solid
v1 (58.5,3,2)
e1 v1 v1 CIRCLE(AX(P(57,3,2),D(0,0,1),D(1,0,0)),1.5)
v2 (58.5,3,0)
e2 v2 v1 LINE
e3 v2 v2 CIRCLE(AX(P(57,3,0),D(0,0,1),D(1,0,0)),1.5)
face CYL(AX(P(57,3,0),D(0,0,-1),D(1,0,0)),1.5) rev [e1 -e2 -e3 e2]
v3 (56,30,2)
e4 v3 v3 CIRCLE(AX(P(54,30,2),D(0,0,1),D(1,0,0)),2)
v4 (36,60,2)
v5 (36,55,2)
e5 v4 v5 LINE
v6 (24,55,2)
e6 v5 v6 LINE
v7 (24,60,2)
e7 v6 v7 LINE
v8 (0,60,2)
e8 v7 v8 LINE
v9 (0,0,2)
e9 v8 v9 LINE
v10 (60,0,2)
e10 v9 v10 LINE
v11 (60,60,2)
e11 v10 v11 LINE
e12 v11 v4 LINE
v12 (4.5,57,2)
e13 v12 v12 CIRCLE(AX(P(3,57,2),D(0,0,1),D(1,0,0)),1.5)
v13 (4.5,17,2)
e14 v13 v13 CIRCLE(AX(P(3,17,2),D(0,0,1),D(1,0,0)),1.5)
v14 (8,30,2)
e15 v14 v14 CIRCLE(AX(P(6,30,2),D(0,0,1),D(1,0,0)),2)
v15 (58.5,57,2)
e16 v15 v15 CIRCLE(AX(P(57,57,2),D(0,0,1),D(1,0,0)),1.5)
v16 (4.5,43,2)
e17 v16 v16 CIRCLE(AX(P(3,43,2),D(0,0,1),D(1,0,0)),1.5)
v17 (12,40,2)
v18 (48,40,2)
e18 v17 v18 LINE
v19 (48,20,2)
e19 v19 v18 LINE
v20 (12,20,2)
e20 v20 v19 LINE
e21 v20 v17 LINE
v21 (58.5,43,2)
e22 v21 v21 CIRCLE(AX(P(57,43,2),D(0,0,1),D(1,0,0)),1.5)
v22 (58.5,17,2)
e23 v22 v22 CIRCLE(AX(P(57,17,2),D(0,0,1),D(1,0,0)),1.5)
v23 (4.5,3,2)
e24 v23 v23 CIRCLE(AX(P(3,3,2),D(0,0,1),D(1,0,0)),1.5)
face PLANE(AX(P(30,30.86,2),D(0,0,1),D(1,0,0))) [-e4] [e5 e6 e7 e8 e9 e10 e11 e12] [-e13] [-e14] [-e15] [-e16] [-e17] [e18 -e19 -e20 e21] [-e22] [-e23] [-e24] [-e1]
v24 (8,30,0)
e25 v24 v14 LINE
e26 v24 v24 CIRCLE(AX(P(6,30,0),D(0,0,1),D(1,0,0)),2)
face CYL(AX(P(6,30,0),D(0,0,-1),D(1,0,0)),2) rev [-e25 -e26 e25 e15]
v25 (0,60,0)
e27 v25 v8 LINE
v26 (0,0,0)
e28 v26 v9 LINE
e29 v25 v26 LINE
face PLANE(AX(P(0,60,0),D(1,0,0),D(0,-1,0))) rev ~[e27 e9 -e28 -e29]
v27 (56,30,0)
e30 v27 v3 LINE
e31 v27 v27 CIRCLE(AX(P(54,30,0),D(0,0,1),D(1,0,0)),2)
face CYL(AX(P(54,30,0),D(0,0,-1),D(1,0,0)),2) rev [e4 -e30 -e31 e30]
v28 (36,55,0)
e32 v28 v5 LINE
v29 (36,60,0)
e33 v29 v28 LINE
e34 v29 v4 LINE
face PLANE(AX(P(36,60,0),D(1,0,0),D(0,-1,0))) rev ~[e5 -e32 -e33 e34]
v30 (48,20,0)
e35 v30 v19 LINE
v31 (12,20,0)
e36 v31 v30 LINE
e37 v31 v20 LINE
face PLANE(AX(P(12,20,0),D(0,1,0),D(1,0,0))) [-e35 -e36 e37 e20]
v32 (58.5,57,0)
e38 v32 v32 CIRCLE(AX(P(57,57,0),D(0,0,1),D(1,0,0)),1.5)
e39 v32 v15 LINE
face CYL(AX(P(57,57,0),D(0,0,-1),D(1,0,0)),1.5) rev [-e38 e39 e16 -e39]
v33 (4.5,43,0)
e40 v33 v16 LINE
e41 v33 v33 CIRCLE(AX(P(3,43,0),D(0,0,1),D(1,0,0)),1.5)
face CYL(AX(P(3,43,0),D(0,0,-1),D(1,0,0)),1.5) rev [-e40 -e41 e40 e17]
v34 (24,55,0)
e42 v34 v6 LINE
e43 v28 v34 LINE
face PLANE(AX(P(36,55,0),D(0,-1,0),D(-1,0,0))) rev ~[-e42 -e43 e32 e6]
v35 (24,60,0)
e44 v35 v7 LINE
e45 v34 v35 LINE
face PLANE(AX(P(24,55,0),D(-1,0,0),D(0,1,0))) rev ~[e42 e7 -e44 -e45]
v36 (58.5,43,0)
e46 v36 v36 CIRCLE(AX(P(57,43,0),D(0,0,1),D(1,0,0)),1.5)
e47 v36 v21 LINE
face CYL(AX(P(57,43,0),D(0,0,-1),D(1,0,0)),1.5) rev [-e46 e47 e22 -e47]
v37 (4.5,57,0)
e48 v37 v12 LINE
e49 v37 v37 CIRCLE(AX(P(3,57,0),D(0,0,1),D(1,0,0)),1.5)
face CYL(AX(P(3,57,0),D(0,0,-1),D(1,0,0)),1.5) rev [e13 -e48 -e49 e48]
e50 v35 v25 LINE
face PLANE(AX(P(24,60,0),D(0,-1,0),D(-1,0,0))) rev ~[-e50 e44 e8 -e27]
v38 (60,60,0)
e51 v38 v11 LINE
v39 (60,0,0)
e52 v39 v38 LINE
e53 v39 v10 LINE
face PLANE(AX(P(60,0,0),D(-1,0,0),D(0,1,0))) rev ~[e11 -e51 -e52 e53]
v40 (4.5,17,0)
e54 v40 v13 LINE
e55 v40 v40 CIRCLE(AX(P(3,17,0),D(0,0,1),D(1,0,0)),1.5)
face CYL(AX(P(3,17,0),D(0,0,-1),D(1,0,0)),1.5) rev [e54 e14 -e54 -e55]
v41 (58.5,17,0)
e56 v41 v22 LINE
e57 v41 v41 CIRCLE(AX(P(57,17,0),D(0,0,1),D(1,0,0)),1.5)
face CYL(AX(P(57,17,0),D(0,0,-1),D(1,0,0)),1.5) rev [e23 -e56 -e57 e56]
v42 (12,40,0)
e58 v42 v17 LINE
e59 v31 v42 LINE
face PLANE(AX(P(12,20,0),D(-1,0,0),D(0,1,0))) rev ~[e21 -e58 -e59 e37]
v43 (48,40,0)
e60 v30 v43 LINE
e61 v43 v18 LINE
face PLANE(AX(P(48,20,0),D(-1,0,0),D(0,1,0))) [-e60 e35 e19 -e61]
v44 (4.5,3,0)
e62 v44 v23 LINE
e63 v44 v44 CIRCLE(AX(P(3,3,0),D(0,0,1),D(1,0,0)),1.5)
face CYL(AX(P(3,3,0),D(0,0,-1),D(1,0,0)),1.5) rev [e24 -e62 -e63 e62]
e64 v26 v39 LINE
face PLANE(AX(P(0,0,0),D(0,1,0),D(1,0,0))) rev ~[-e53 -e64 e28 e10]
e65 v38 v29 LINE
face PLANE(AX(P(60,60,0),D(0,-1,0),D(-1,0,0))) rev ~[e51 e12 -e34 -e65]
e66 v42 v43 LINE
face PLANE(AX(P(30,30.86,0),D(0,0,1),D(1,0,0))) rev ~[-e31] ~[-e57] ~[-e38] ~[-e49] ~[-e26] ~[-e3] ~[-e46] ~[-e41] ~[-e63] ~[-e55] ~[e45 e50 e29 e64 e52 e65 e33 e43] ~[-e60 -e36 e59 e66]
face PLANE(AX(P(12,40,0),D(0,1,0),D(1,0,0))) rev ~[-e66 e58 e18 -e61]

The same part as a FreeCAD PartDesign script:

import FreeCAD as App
import Part
import Sketcher
from FreeCAD import Vector

doc = App.newDocument("Part")
params = doc.addObject("Spreadsheet::Sheet", "Params")
for row, (alias, value) in enumerate([
    ("sketch1_diameter", "3 mm"),
    ("sketch1_diameter2", "4 mm"),
    ("sketch1_width", "24 mm"),
    ("sketch1_width2", "12 mm"),
    ("sketch1_width3", "36 mm"),
    ("pad1_length", "2 mm"),
], start=1):
    params.set(f"A{row}", alias)
    params.set(f"B{row}", "=" + value)
    params.setAlias(f"B{row}", alias)

body = doc.addObject("PartDesign::Body", "Body")

sketch1 = doc.addObject("Sketcher::SketchObject", "Sketch")
body.addObject(sketch1)
sketch1.AttachmentSupport = (doc.XY_Plane, [""])
sketch1.MapMode = "FlatFace"
sketch1.addGeometry(Part.LineSegment(Vector(60, 0, 0), Vector(60, 60, 0)), False)
sketch1.addGeometry(Part.LineSegment(Vector(60, 60, 0), Vector(36, 60, 0)), False)
sketch1.addGeometry(Part.LineSegment(Vector(36, 60, 0), Vector(36, 55, 0)), False)
sketch1.addGeometry(Part.LineSegment(Vector(36, 55, 0), Vector(24, 55, 0)), False)
sketch1.addGeometry(Part.LineSegment(Vector(24, 55, 0), Vector(24, 60, 0)), False)
sketch1.addGeometry(Part.LineSegment(Vector(24, 60, 0), Vector(0, 60, 0)), False)
sketch1.addGeometry(Part.LineSegment(Vector(0, 60, 0), Vector(0, 0, 0)), False)
sketch1.addGeometry(Part.LineSegment(Vector(0, 0, 0), Vector(60, 0, 0)), False)
sketch1.addGeometry(Part.Circle(Vector(3, 3, 0), Vector(0, 0, 1), 1.5), False)
sketch1.addGeometry(Part.Circle(Vector(3, 17, 0), Vector(0, 0, 1), 1.5), False)
sketch1.addGeometry(Part.Circle(Vector(57, 3, 0), Vector(0, 0, 1), 1.5), False)
sketch1.addGeometry(Part.Circle(Vector(57, 17, 0), Vector(0, 0, 1), 1.5), False)
sketch1.addGeometry(Part.Circle(Vector(6, 30, 0), Vector(0, 0, 1), 2), False)
sketch1.addGeometry(Part.Circle(Vector(3, 43, 0), Vector(0, 0, 1), 1.5), False)
sketch1.addGeometry(Part.Circle(Vector(3, 57, 0), Vector(0, 0, 1), 1.5), False)
sketch1.addGeometry(Part.LineSegment(Vector(48, 20, 0), Vector(12, 20, 0)), False)
sketch1.addGeometry(Part.LineSegment(Vector(12, 20, 0), Vector(12, 40, 0)), False)
sketch1.addGeometry(Part.LineSegment(Vector(12, 40, 0), Vector(48, 40, 0)), False)
sketch1.addGeometry(Part.LineSegment(Vector(48, 40, 0), Vector(48, 20, 0)), False)
sketch1.addGeometry(Part.Circle(Vector(54, 30, 0), Vector(0, 0, 1), 2), False)
sketch1.addGeometry(Part.Circle(Vector(57, 43, 0), Vector(0, 0, 1), 1.5), False)
sketch1.addGeometry(Part.Circle(Vector(57, 57, 0), Vector(0, 0, 1), 1.5), False)
sketch1.addConstraint(Sketcher.Constraint("Coincident", 0, 2, 1, 1))
sketch1.addConstraint(Sketcher.Constraint("Coincident", 1, 2, 2, 1))
sketch1.addConstraint(Sketcher.Constraint("Coincident", 2, 2, 3, 1))
sketch1.addConstraint(Sketcher.Constraint("Coincident", 3, 2, 4, 1))
sketch1.addConstraint(Sketcher.Constraint("Coincident", 4, 2, 5, 1))
sketch1.addConstraint(Sketcher.Constraint("Coincident", 5, 2, 6, 1))
sketch1.addConstraint(Sketcher.Constraint("Coincident", 6, 2, 7, 1))
sketch1.addConstraint(Sketcher.Constraint("Coincident", 7, 2, 0, 1))
sketch1.addConstraint(Sketcher.Constraint("Coincident", 15, 2, 16, 1))
sketch1.addConstraint(Sketcher.Constraint("Coincident", 16, 2, 17, 1))
sketch1.addConstraint(Sketcher.Constraint("Coincident", 17, 2, 18, 1))
sketch1.addConstraint(Sketcher.Constraint("Coincident", 18, 2, 15, 1))
sketch1.addConstraint(Sketcher.Constraint("Vertical", 0))
sketch1.addConstraint(Sketcher.Constraint("Horizontal", 1))
sketch1.addConstraint(Sketcher.Constraint("Vertical", 2))
sketch1.addConstraint(Sketcher.Constraint("Horizontal", 3))
sketch1.addConstraint(Sketcher.Constraint("Vertical", 4))
sketch1.addConstraint(Sketcher.Constraint("Horizontal", 5))
sketch1.addConstraint(Sketcher.Constraint("Vertical", 6))
sketch1.addConstraint(Sketcher.Constraint("Horizontal", 7))
sketch1.addConstraint(Sketcher.Constraint("Horizontal", 15))
sketch1.addConstraint(Sketcher.Constraint("Vertical", 16))
sketch1.addConstraint(Sketcher.Constraint("Horizontal", 17))
sketch1.addConstraint(Sketcher.Constraint("Vertical", 18))
sketch1.addConstraint(Sketcher.Constraint("Coincident", 6, 2, -1, 1))
sketch1.addConstraint(Sketcher.Constraint("Equal", 8, 9))
sketch1.addConstraint(Sketcher.Constraint("Equal", 9, 10))
sketch1.addConstraint(Sketcher.Constraint("Equal", 10, 11))
sketch1.addConstraint(Sketcher.Constraint("Equal", 11, 13))
sketch1.addConstraint(Sketcher.Constraint("Equal", 13, 14))
sketch1.addConstraint(Sketcher.Constraint("Equal", 12, 19))
sketch1.addConstraint(Sketcher.Constraint("Equal", 14, 20))
sketch1.addConstraint(Sketcher.Constraint("Equal", 20, 21))
sketch1.addConstraint(Sketcher.Constraint("Horizontal", 8, 3, 10, 3))
sketch1.addConstraint(Sketcher.Constraint("Horizontal", 9, 3, 11, 3))
sketch1.addConstraint(Sketcher.Constraint("Horizontal", 12, 3, 19, 3))
sketch1.addConstraint(Sketcher.Constraint("Horizontal", 13, 3, 20, 3))
sketch1.addConstraint(Sketcher.Constraint("Horizontal", 14, 3, 21, 3))
sketch1.addConstraint(Sketcher.Constraint("Horizontal", 1, 2, 4, 2))
sketch1.addConstraint(Sketcher.Constraint("Vertical", 8, 3, 9, 3))
sketch1.addConstraint(Sketcher.Constraint("Vertical", 10, 3, 11, 3))
sketch1.addConstraint(Sketcher.Constraint("Vertical", 9, 3, 13, 3))
sketch1.addConstraint(Sketcher.Constraint("Vertical", 13, 3, 14, 3))
sketch1.addConstraint(Sketcher.Constraint("Vertical", 11, 3, 20, 3))
sketch1.addConstraint(Sketcher.Constraint("Vertical", 20, 3, 21, 3))
sketch1.addConstraint(Sketcher.Constraint("Equal", 1, 5))
sketch1.addConstraint(Sketcher.Constraint("Equal", 7, 0))
sketch1.addConstraint(Sketcher.Constraint("Diameter", 8, 3.0))
sketch1.addConstraint(Sketcher.Constraint("Diameter", 12, 4.0))
sketch1.addConstraint(Sketcher.Constraint("DistanceX", 1, 2, 1, 1, 24.0))
sketch1.addConstraint(Sketcher.Constraint("DistanceX", 3, 2, 3, 1, 12.0))
sketch1.addConstraint(Sketcher.Constraint("DistanceX", 15, 2, 15, 1, 36.0))
sketch1.addConstraint(Sketcher.Constraint("DistanceY", 2, 2, 2, 1, 5.0))
sketch1.addConstraint(Sketcher.Constraint("DistanceY", 16, 1, 16, 2, 20.0))
sketch1.addConstraint(Sketcher.Constraint("DistanceX", -1, 1, 8, 3, 3.0))
sketch1.addConstraint(Sketcher.Constraint("DistanceY", -1, 1, 8, 3, 3.0))
sketch1.addConstraint(Sketcher.Constraint("DistanceY", -1, 1, 9, 3, 17.0))
sketch1.addConstraint(Sketcher.Constraint("DistanceX", -1, 1, 10, 3, 57.0))
sketch1.addConstraint(Sketcher.Constraint("DistanceX", -1, 1, 12, 3, 6.0))
sketch1.addConstraint(Sketcher.Constraint("DistanceY", -1, 1, 12, 3, 30.0))
sketch1.addConstraint(Sketcher.Constraint("DistanceY", -1, 1, 13, 3, 43.0))
sketch1.addConstraint(Sketcher.Constraint("DistanceY", -1, 1, 14, 3, 57.0))
sketch1.addConstraint(Sketcher.Constraint("DistanceX", -1, 1, 19, 3, 54.0))
sketch1.addConstraint(Sketcher.Constraint("DistanceX", -1, 1, 15, 2, 12.0))
sketch1.addConstraint(Sketcher.Constraint("DistanceY", -1, 1, 15, 2, 20.0))
sketch1.setExpression("Constraints[47]", "Params.sketch1_diameter")
sketch1.setExpression("Constraints[48]", "Params.sketch1_diameter2")
sketch1.setExpression("Constraints[49]", "Params.sketch1_width")
sketch1.setExpression("Constraints[50]", "Params.sketch1_width2")
sketch1.setExpression("Constraints[51]", "Params.sketch1_width3")
pad1 = doc.addObject("PartDesign::Pad", "Pad")
body.addObject(pad1)
pad1.Profile = sketch1
pad1.setExpression("Length", "Params.pad1_length")

doc.recompute()
